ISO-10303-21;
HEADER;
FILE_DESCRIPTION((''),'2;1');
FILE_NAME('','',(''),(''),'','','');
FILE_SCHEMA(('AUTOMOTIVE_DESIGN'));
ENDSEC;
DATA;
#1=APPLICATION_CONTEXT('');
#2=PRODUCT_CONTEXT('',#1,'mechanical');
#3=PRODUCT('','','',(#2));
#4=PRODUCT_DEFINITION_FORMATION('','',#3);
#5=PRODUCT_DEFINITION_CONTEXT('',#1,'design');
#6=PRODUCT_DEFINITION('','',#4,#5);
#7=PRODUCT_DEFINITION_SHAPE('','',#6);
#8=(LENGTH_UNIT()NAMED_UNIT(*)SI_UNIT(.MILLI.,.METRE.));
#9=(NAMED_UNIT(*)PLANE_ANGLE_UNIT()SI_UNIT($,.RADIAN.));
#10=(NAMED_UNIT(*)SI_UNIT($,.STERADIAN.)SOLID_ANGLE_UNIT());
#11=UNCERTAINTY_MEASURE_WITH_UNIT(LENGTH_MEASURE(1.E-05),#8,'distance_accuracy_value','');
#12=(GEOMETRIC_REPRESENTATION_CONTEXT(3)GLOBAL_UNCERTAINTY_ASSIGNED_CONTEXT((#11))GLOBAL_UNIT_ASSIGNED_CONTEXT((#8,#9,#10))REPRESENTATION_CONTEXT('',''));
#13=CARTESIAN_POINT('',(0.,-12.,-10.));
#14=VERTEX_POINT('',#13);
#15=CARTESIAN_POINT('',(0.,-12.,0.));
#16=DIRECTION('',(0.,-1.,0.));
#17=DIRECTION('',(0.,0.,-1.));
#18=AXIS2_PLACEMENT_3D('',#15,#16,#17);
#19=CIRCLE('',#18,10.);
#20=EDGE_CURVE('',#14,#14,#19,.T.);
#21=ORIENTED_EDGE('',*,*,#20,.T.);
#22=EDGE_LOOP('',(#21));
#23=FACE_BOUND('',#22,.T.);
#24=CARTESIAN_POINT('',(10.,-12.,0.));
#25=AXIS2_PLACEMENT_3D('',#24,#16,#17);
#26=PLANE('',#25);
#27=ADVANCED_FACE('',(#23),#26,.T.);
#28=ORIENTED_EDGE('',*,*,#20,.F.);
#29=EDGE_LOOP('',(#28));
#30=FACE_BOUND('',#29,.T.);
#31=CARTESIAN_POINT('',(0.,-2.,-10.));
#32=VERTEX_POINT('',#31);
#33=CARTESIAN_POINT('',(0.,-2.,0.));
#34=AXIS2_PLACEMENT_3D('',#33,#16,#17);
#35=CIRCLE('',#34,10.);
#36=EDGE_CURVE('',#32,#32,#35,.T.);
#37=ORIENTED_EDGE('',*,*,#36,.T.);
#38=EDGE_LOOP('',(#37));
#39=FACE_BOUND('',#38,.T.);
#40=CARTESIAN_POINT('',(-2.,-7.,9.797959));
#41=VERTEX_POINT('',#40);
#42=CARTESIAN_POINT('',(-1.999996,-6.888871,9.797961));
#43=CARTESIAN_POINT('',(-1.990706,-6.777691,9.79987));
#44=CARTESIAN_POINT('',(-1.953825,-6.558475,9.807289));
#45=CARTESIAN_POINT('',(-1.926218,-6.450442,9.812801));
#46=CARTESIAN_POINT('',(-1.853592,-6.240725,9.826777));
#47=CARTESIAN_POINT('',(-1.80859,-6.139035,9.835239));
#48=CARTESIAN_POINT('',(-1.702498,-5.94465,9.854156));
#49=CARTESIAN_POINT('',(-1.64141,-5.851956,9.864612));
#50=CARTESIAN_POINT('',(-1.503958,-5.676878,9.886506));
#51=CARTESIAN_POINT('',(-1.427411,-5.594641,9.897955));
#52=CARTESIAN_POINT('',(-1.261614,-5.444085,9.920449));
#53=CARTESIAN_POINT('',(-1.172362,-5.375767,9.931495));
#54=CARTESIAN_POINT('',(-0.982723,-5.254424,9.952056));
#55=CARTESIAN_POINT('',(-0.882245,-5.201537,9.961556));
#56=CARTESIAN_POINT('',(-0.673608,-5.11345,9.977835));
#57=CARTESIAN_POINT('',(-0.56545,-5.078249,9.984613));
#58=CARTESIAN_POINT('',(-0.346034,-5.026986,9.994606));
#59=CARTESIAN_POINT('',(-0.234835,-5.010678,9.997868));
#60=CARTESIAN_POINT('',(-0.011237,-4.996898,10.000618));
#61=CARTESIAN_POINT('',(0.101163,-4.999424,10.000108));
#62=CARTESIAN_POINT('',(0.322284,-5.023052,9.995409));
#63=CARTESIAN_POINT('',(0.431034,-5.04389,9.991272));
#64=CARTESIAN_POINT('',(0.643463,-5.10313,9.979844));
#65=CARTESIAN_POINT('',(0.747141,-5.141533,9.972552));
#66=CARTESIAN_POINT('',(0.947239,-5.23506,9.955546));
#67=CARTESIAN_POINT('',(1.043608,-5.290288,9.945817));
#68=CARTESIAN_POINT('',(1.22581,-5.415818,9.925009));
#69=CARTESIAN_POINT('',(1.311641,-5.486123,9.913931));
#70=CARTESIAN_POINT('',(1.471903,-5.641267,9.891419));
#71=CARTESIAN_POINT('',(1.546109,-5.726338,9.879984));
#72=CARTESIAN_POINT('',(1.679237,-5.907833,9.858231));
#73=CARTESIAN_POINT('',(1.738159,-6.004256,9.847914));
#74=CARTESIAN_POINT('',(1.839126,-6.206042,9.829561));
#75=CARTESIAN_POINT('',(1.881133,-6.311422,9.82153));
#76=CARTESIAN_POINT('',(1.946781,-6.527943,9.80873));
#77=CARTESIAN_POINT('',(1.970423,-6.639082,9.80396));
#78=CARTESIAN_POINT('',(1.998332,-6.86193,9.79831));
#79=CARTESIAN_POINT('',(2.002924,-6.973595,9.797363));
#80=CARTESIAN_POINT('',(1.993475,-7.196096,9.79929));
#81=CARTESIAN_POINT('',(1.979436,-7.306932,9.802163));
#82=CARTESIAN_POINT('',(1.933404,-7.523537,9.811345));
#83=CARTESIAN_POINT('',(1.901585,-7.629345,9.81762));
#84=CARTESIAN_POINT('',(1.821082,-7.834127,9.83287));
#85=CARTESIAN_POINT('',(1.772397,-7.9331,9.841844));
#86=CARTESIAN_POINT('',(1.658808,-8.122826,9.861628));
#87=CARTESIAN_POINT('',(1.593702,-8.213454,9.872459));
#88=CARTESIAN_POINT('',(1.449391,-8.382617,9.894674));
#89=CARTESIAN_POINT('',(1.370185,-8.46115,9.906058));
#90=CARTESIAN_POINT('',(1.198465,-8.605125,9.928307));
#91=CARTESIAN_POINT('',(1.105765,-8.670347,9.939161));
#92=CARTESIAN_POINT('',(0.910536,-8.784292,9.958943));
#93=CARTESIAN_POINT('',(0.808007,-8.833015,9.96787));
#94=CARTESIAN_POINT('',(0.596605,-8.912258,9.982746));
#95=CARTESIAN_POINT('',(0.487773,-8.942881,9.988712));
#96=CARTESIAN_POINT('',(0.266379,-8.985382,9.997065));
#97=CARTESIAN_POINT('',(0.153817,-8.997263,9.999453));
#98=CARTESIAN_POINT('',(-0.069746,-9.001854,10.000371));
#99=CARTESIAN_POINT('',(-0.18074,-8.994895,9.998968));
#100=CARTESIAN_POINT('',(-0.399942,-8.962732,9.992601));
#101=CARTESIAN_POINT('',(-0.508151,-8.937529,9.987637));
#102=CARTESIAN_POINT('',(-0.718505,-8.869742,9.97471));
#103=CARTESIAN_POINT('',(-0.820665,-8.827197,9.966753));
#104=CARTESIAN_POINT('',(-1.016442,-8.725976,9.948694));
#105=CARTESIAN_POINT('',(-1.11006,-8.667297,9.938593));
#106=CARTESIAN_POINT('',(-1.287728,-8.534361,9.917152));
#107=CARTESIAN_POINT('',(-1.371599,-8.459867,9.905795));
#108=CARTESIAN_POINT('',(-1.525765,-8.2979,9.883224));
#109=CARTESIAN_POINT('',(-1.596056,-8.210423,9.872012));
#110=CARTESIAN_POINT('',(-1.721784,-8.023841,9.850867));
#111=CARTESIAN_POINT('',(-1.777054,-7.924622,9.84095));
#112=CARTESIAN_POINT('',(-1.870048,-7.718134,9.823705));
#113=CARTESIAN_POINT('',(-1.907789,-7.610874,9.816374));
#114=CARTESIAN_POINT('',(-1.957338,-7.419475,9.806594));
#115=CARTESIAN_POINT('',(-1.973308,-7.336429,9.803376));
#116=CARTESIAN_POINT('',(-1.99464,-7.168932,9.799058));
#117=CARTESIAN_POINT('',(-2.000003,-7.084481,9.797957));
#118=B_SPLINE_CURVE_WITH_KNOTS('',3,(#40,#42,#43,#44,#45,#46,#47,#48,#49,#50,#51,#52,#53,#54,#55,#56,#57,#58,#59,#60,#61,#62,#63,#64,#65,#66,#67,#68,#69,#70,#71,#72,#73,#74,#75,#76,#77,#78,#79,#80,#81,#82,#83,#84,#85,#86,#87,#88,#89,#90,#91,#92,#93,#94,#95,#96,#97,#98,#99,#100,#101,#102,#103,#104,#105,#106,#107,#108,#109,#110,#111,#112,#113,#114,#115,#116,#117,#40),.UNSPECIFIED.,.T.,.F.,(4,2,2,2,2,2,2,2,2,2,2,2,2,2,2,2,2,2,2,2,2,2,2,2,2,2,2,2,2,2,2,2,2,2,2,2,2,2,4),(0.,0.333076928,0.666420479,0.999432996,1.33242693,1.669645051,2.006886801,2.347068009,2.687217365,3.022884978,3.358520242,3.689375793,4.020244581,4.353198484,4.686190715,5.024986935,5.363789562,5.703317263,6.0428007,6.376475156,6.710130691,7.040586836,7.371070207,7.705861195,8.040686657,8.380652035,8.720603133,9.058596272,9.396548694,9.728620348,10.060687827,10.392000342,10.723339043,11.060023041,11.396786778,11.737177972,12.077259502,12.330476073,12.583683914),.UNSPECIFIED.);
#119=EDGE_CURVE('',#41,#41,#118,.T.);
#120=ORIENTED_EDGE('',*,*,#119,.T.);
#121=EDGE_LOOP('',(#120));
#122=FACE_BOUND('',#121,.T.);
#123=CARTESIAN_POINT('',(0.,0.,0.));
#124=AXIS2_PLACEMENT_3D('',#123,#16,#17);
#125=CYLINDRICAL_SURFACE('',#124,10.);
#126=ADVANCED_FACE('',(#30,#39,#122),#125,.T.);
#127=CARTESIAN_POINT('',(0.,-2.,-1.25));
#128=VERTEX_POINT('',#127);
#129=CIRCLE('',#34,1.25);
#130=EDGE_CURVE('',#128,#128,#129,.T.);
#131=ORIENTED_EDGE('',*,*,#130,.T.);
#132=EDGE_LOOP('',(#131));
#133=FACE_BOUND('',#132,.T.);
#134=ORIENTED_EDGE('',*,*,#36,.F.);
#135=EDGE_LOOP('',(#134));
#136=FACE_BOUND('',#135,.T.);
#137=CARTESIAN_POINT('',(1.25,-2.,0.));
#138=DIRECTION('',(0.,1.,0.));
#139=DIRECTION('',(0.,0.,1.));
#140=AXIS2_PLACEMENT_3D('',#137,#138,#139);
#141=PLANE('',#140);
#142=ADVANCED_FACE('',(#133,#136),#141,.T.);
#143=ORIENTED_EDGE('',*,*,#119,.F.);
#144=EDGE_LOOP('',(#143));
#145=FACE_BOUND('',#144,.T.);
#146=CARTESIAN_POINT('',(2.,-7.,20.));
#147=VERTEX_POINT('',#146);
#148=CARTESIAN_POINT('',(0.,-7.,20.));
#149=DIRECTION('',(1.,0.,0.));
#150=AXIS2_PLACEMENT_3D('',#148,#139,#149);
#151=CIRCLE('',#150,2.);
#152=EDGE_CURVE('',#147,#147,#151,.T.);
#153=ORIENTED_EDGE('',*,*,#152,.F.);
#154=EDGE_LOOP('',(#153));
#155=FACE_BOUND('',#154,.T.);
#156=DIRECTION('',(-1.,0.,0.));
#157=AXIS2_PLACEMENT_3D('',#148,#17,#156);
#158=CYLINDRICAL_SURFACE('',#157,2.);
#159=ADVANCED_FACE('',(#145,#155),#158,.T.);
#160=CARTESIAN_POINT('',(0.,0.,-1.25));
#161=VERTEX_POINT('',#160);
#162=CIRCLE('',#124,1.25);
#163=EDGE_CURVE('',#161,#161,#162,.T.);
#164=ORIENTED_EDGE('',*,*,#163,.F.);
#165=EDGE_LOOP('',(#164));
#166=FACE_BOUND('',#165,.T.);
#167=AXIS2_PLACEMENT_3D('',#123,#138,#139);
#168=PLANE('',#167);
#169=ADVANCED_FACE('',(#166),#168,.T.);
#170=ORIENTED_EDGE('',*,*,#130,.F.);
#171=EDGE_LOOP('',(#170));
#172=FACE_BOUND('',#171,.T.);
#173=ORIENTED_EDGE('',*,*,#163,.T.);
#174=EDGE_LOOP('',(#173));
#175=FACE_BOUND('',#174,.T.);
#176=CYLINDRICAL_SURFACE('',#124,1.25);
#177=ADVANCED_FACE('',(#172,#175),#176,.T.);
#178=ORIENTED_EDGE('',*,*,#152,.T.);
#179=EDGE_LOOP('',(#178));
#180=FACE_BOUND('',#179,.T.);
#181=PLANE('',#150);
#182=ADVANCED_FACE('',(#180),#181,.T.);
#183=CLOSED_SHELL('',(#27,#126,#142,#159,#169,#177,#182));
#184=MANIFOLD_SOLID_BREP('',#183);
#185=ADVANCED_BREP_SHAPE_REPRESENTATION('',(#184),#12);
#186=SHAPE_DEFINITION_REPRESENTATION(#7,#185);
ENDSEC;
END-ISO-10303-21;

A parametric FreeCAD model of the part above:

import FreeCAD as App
import Part
import Sketcher
from FreeCAD import Vector
Q = App.Units.Quantity

doc = App.newDocument("Part")
body = doc.addObject("PartDesign::Body", "Body")

sketch1 = doc.addObject("Sketcher::SketchObject", "Sketch")
body.addObject(sketch1)
sketch1.AttachmentSupport = (doc.XY_Plane, [""])
sketch1.MapMode = "FlatFace"
sketch1.addGeometry(Part.LineSegment(Vector(0, 0, 0), Vector(0, -12, 0)), False)
sketch1.addGeometry(Part.LineSegment(Vector(0, -12, 0), Vector(10, -12, 0)), False)
sketch1.addGeometry(Part.LineSegment(Vector(10, -12, 0), Vector(10, -2, 0)), False)
sketch1.addGeometry(Part.LineSegment(Vector(10, -2, 0), Vector(1.2, -2, 0)), False)
sketch1.addGeometry(Part.LineSegment(Vector(1.2, -2, 0), Vector(1.2, 0, 0)), False)
sketch1.addGeometry(Part.LineSegment(Vector(1.2, 0, 0), Vector(0, 0, 0)), False)
sketch1.addConstraint(Sketcher.Constraint("Coincident", 0, 2, 1, 1))
sketch1.addConstraint(Sketcher.Constraint("Coincident", 1, 2, 2, 1))
sketch1.addConstraint(Sketcher.Constraint("Coincident", 2, 2, 3, 1))
sketch1.addConstraint(Sketcher.Constraint("Coincident", 3, 2, 4, 1))
sketch1.addConstraint(Sketcher.Constraint("Coincident", 4, 2, 5, 1))
sketch1.addConstraint(Sketcher.Constraint("Coincident", 5, 2, 0, 1))
sketch1.addConstraint(Sketcher.Constraint("Vertical", 0))
sketch1.addConstraint(Sketcher.Constraint("Horizontal", 1))
sketch1.addConstraint(Sketcher.Constraint("Vertical", 2))
sketch1.addConstraint(Sketcher.Constraint("Horizontal", 3))
sketch1.addConstraint(Sketcher.Constraint("Vertical", 4))
sketch1.addConstraint(Sketcher.Constraint("Horizontal", 5))
sketch1.addConstraint(Sketcher.Constraint("Coincident", 5, 2, -1, 1))
sketch1.addConstraint(Sketcher.Constraint("Equal", 1, 2))
sketch1.addConstraint(Sketcher.Constraint("DistanceX", 1, 1, 1, 2, Q("10 mm")))
sketch1.addConstraint(Sketcher.Constraint("DistanceY", 0, 2, 0, 1, Q("12 mm")))
sketch1.addConstraint(Sketcher.Constraint("DistanceX", 3, 2, 3, 1, Q("8.75 mm")))
revolution = doc.addObject("PartDesign::Revolution", "Revolution")
body.addObject(revolution)
revolution.Profile = sketch1
revolution.ReferenceAxis = (sketch1, ["V_Axis"])
revolution.Angle = 360

sketch2 = doc.addObject("Sketcher::SketchObject", "Sketch001")
body.addObject(sketch2)
sketch2.AttachmentSupport = (doc.XY_Plane, [""])
sketch2.MapMode = "FlatFace"
sketch2.addGeometry(Part.Circle(Vector(0, -7, 0), Vector(0, 0, 1), 2), False)
sketch2.addConstraint(Sketcher.Constraint("PointOnObject", 0, 3, -2))
sketch2.addConstraint(Sketcher.Constraint("Diameter", 0, Q("4 mm")))
sketch2.addConstraint(Sketcher.Constraint("DistanceY", 0, 3, -1, 1, Q("7 mm")))
pad1 = doc.addObject("PartDesign::Pad", "Pad")
body.addObject(pad1)
pad1.Profile = sketch2
pad1.Length = 20

doc.recompute()
